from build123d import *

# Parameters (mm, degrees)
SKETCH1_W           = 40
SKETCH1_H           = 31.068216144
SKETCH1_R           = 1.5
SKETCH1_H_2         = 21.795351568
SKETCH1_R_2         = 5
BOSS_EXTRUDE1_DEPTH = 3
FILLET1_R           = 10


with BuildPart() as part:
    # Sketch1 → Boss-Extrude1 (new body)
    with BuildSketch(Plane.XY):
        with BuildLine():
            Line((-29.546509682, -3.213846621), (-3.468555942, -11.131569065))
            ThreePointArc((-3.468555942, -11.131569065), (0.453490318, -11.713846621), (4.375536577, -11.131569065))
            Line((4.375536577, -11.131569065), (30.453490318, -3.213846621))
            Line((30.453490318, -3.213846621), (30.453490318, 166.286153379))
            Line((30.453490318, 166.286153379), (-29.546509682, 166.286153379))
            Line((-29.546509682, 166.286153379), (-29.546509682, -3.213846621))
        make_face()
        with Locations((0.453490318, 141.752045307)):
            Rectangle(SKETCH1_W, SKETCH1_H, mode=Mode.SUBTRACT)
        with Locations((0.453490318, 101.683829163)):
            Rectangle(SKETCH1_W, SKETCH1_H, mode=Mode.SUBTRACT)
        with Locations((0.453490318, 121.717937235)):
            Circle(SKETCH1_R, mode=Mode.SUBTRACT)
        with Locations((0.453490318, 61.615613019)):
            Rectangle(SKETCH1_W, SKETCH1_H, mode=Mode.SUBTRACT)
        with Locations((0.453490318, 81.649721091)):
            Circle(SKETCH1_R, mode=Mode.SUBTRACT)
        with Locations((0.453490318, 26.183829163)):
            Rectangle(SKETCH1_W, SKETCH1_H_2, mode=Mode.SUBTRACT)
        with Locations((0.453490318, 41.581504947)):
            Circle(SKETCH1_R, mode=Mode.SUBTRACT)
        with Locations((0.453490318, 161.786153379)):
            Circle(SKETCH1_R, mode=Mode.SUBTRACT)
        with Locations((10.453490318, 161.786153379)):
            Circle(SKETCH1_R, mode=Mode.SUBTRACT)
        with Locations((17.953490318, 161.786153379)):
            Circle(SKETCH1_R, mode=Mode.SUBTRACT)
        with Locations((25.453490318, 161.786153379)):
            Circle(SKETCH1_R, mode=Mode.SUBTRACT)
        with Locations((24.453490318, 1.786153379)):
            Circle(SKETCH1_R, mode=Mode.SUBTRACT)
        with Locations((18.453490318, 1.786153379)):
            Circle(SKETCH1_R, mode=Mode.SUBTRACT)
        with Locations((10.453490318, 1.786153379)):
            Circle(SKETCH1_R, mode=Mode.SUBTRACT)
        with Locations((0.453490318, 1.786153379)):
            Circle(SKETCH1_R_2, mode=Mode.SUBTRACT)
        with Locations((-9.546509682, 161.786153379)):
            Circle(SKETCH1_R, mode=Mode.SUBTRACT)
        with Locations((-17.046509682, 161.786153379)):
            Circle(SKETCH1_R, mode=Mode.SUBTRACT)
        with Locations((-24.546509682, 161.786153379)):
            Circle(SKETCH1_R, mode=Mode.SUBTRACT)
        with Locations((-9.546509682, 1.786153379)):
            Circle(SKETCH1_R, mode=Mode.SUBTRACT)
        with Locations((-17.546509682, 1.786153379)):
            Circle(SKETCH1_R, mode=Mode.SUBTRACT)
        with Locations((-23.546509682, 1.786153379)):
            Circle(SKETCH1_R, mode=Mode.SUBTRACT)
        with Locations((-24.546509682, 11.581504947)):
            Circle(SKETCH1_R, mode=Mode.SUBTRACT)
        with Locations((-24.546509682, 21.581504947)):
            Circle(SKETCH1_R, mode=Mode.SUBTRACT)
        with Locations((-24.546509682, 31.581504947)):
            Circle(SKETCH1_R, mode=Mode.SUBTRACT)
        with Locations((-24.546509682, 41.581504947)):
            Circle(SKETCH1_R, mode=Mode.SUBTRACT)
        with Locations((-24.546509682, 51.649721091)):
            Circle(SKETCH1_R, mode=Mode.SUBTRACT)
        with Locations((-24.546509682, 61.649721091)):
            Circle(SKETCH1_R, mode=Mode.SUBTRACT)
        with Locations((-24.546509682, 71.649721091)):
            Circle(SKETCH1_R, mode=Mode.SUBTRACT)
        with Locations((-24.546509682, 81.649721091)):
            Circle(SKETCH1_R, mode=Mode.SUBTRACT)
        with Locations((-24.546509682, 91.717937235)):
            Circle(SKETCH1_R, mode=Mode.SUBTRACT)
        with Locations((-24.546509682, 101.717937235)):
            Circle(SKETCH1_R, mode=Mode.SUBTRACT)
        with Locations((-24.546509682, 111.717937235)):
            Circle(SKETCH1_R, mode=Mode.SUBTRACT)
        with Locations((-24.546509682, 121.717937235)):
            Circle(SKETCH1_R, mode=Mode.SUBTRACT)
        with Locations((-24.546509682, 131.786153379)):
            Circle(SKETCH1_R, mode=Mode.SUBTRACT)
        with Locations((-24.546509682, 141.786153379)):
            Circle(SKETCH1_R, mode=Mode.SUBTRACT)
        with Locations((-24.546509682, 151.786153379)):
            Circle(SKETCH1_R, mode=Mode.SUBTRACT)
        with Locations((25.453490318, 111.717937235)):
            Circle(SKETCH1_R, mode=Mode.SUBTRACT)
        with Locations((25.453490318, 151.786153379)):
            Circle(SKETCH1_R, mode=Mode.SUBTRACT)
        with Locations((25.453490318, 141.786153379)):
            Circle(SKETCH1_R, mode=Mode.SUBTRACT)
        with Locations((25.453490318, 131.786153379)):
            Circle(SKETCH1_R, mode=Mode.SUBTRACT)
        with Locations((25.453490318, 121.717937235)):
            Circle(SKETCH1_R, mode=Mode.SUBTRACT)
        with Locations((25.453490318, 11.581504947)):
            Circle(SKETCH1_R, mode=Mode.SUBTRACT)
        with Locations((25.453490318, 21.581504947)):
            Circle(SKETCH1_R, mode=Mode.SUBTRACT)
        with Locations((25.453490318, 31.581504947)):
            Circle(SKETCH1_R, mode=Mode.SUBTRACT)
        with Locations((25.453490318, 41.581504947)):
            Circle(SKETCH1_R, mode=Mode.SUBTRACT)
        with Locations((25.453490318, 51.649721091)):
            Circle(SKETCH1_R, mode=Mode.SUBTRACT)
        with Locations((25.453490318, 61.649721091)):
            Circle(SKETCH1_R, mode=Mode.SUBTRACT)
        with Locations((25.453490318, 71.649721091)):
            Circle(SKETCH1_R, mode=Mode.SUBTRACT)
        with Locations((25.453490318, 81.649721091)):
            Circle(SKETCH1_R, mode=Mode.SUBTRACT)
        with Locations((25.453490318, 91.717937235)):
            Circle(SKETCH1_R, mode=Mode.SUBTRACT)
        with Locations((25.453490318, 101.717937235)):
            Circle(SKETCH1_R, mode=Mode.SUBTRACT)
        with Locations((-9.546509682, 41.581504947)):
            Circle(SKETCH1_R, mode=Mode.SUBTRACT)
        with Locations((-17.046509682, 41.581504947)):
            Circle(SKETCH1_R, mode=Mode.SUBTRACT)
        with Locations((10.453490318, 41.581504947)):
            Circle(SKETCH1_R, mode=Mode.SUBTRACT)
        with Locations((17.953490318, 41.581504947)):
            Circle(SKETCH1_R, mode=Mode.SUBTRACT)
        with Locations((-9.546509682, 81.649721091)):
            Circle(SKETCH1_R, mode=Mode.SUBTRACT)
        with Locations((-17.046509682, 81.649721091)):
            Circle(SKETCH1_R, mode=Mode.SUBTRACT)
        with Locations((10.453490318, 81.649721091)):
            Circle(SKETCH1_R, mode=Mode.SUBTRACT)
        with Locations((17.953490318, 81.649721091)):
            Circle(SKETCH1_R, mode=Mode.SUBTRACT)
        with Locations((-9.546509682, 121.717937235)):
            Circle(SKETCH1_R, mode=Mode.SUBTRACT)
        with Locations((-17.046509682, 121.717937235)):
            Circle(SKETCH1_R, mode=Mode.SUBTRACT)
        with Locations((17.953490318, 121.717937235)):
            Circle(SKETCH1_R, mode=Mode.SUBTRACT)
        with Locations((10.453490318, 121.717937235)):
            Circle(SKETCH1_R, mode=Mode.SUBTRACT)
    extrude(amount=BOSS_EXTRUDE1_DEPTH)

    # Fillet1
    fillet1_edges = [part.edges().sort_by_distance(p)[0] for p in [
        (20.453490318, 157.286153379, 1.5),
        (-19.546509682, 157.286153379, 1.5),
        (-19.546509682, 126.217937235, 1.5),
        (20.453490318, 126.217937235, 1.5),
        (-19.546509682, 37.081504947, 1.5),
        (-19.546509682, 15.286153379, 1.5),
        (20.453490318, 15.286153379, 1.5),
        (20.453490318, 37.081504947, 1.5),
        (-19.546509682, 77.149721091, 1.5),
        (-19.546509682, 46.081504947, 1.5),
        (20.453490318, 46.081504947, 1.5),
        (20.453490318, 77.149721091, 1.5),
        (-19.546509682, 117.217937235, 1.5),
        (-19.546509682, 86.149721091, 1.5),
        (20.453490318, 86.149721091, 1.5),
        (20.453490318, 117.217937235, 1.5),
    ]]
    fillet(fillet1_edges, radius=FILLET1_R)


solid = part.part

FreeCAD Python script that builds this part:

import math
import FreeCAD as App
import Part
import Sketcher

V = App.Vector
Q = App.Units.Quantity


def edges_at(feature, points):
    """Names of the edges that pass closest to the given points."""
    edges = feature.Shape.Edges
    near = lambda p: min(range(len(edges)), key=lambda i: edges[i].distToShape(Part.Vertex(*p))[0])
    return sorted({f"Edge{near(p) + 1}" for p in points})

doc = App.newDocument("Part")
body = doc.addObject("PartDesign::Body", "Body")

sketch1 = body.newObject("Sketcher::SketchObject", "Sketch")
sketch1.AttachmentSupport = (doc.getObject("XY_Plane"), [""])
sketch1.MapMode = "FlatFace"
sketch1.addGeometry(Part.LineSegment(V(-29.5, -3.2, 0), V(-3.5, -11.1, 0)), False)
sketch1.addGeometry(Part.ArcOfCircle(Part.Circle(V(0.5, 1.8, 0), V(0, 0, 1), 13.5), math.radians(-107), math.radians(-73)), False)
sketch1.addGeometry(Part.LineSegment(V(4.4, -11.1, 0), V(30.5, -3.2, 0)), False)
sketch1.addGeometry(Part.LineSegment(V(30.5, -3.2, 0), V(30.5, 166.3, 0)), False)
sketch1.addGeometry(Part.LineSegment(V(30.5, 166.3, 0), V(-29.5, 166.3, 0)), False)
sketch1.addGeometry(Part.LineSegment(V(-29.5, 166.3, 0), V(-29.5, -3.2, 0)), False)
sketch1.addGeometry(Part.Circle(V(-23.5, 1.8, 0), V(0, 0, 1), 1.5), False)
sketch1.addGeometry(Part.Circle(V(-24.5, 11.6, 0), V(0, 0, 1), 1.5), False)
sketch1.addGeometry(Part.Circle(V(-17.5, 1.8, 0), V(0, 0, 1), 1.5), False)
sketch1.addGeometry(Part.Circle(V(-24.5, 21.6, 0), V(0, 0, 1), 1.5), False)
sketch1.addGeometry(Part.Circle(V(-24.5, 31.6, 0), V(0, 0, 1), 1.5), False)
sketch1.addGeometry(Part.Circle(V(-9.5, 1.8, 0), V(0, 0, 1), 1.5), False)
sketch1.addGeometry(Part.Circle(V(-24.5, 41.6, 0), V(0, 0, 1), 1.5), False)
sketch1.addGeometry(Part.Circle(V(-24.5, 51.6, 0), V(0, 0, 1), 1.5), False)
sketch1.addGeometry(Part.Circle(V(-17, 41.6, 0), V(0, 0, 1), 1.5), False)
sketch1.addGeometry(Part.Circle(V(-24.5, 61.6, 0), V(0, 0, 1), 1.5), False)
sketch1.addGeometry(Part.Circle(V(-24.5, 71.6, 0), V(0, 0, 1), 1.5), False)
sketch1.addGeometry(Part.Circle(V(-9.5, 41.6, 0), V(0, 0, 1), 1.5), False)
sketch1.addGeometry(Part.Circle(V(0.5, 1.8, 0), V(0, 0, 1), 5), False)
sketch1.addGeometry(Part.Circle(V(10.5, 1.8, 0), V(0, 0, 1), 1.5), False)
sketch1.addGeometry(Part.LineSegment(V(20.5, 15.3, 0), V(-19.5, 15.3, 0)), False)
sketch1.addGeometry(Part.LineSegment(V(-19.5, 15.3, 0), V(-19.5, 37.1, 0)), False)
sketch1.addGeometry(Part.LineSegment(V(-19.5, 37.1, 0), V(20.5, 37.1, 0)), False)
sketch1.addGeometry(Part.LineSegment(V(20.5, 37.1, 0), V(20.5, 15.3, 0)), False)
sketch1.addGeometry(Part.Circle(V(18.5, 1.8, 0), V(0, 0, 1), 1.5), False)
sketch1.addGeometry(Part.Circle(V(24.5, 1.8, 0), V(0, 0, 1), 1.5), False)
sketch1.addGeometry(Part.Circle(V(25.5, 11.6, 0), V(0, 0, 1), 1.5), False)
sketch1.addGeometry(Part.Circle(V(25.5, 21.6, 0), V(0, 0, 1), 1.5), False)
sketch1.addGeometry(Part.Circle(V(25.5, 31.6, 0), V(0, 0, 1), 1.5), False)
sketch1.addGeometry(Part.Circle(V(0.5, 41.6, 0), V(0, 0, 1), 1.5), False)
sketch1.addGeometry(Part.Circle(V(10.5, 41.6, 0), V(0, 0, 1), 1.5), False)
sketch1.addGeometry(Part.LineSegment(V(20.5, 46.1, 0), V(-19.5, 46.1, 0)), False)
sketch1.addGeometry(Part.LineSegment(V(-19.5, 46.1, 0), V(-19.5, 77.1, 0)), False)
sketch1.addGeometry(Part.LineSegment(V(-19.5, 77.1, 0), V(20.5, 77.1, 0)), False)
sketch1.addGeometry(Part.LineSegment(V(20.5, 77.1, 0), V(20.5, 46.1, 0)), False)
sketch1.addGeometry(Part.Circle(V(18, 41.6, 0), V(0, 0, 1), 1.5), False)
sketch1.addGeometry(Part.Circle(V(25.5, 41.6, 0), V(0, 0, 1), 1.5), False)
sketch1.addGeometry(Part.Circle(V(25.5, 51.6, 0), V(0, 0, 1), 1.5), False)
sketch1.addGeometry(Part.Circle(V(25.5, 61.6, 0), V(0, 0, 1), 1.5), False)
sketch1.addGeometry(Part.Circle(V(25.5, 71.6, 0), V(0, 0, 1), 1.5), False)
sketch1.addGeometry(Part.Circle(V(-24.5, 81.6, 0), V(0, 0, 1), 1.5), False)
sketch1.addGeometry(Part.Circle(V(-24.5, 91.7, 0), V(0, 0, 1), 1.5), False)
sketch1.addGeometry(Part.Circle(V(-17, 81.6, 0), V(0, 0, 1), 1.5), False)
sketch1.addGeometry(Part.Circle(V(-24.5, 101.7, 0), V(0, 0, 1), 1.5), False)
sketch1.addGeometry(Part.Circle(V(-24.5, 111.7, 0), V(0, 0, 1), 1.5), False)
sketch1.addGeometry(Part.Circle(V(-9.5, 81.6, 0), V(0, 0, 1), 1.5), False)
sketch1.addGeometry(Part.Circle(V(-24.5, 121.7, 0), V(0, 0, 1), 1.5), False)
sketch1.addGeometry(Part.Circle(V(-24.5, 131.8, 0), V(0, 0, 1), 1.5), False)
sketch1.addGeometry(Part.Circle(V(-24.5, 141.8, 0), V(0, 0, 1), 1.5), False)
sketch1.addGeometry(Part.Circle(V(-17, 121.7, 0), V(0, 0, 1), 1.5), False)
sketch1.addGeometry(Part.Circle(V(-24.5, 151.8, 0), V(0, 0, 1), 1.5), False)
sketch1.addGeometry(Part.Circle(V(-24.5, 161.8, 0), V(0, 0, 1), 1.5), False)
sketch1.addGeometry(Part.Circle(V(-17, 161.8, 0), V(0, 0, 1), 1.5), False)
sketch1.addGeometry(Part.Circle(V(-9.5, 121.7, 0), V(0, 0, 1), 1.5), False)
sketch1.addGeometry(Part.Circle(V(-9.5, 161.8, 0), V(0, 0, 1), 1.5), False)
sketch1.addGeometry(Part.Circle(V(0.5, 81.6, 0), V(0, 0, 1), 1.5), False)
sketch1.addGeometry(Part.Circle(V(10.5, 81.6, 0), V(0, 0, 1), 1.5), False)
sketch1.addGeometry(Part.LineSegment(V(20.5, 86.1, 0), V(-19.5, 86.1, 0)), False)
sketch1.addGeometry(Part.LineSegment(V(-19.5, 86.1, 0), V(-19.5, 117.2, 0)), False)
sketch1.addGeometry(Part.LineSegment(V(-19.5, 117.2, 0), V(20.5, 117.2, 0)), False)
sketch1.addGeometry(Part.LineSegment(V(20.5, 117.2, 0), V(20.5, 86.1, 0)), False)
sketch1.addGeometry(Part.Circle(V(18, 81.6, 0), V(0, 0, 1), 1.5), False)
sketch1.addGeometry(Part.Circle(V(25.5, 81.6, 0), V(0, 0, 1), 1.5), False)
sketch1.addGeometry(Part.Circle(V(25.5, 91.7, 0), V(0, 0, 1), 1.5), False)
sketch1.addGeometry(Part.Circle(V(25.5, 101.7, 0), V(0, 0, 1), 1.5), False)
sketch1.addGeometry(Part.Circle(V(25.5, 111.7, 0), V(0, 0, 1), 1.5), False)
sketch1.addGeometry(Part.Circle(V(0.5, 121.7, 0), V(0, 0, 1), 1.5), False)
sketch1.addGeometry(Part.LineSegment(V(20.5, 126.2, 0), V(-19.5, 126.2, 0)), False)
sketch1.addGeometry(Part.LineSegment(V(-19.5, 126.2, 0), V(-19.5, 157.3, 0)), False)
sketch1.addGeometry(Part.LineSegment(V(-19.5, 157.3, 0), V(20.5, 157.3, 0)), False)
sketch1.addGeometry(Part.LineSegment(V(20.5, 157.3, 0), V(20.5, 126.2, 0)), False)
sketch1.addGeometry(Part.Circle(V(10.5, 121.7, 0), V(0, 0, 1), 1.5), False)
sketch1.addGeometry(Part.Circle(V(0.5, 161.8, 0), V(0, 0, 1), 1.5), False)
sketch1.addGeometry(Part.Circle(V(10.5, 161.8, 0), V(0, 0, 1), 1.5), False)
sketch1.addGeometry(Part.Circle(V(18, 121.7, 0), V(0, 0, 1), 1.5), False)
sketch1.addGeometry(Part.Circle(V(25.5, 121.7, 0), V(0, 0, 1), 1.5), False)
sketch1.addGeometry(Part.Circle(V(25.5, 131.8, 0), V(0, 0, 1), 1.5), False)
sketch1.addGeometry(Part.Circle(V(25.5, 141.8, 0), V(0, 0, 1), 1.5), False)
sketch1.addGeometry(Part.Circle(V(18, 161.8, 0), V(0, 0, 1), 1.5), False)
sketch1.addGeometry(Part.Circle(V(25.5, 151.8, 0), V(0, 0, 1), 1.5), False)
sketch1.addGeometry(Part.Circle(V(25.5, 161.8, 0), V(0, 0, 1), 1.5), False)
sketch1.addConstraint(Sketcher.Constraint("Tangent", 0, 2, 1, 1))
sketch1.addConstraint(Sketcher.Constraint("Tangent", 1, 2, 2, 1))
sketch1.addConstraint(Sketcher.Constraint("Coincident", 2, 2, 3, 1))
sketch1.addConstraint(Sketcher.Constraint("Coincident", 3, 2, 4, 1))
sketch1.addConstraint(Sketcher.Constraint("Coincident", 4, 2, 5, 1))
sketch1.addConstraint(Sketcher.Constraint("Coincident", 5, 2, 0, 1))
sketch1.addConstraint(Sketcher.Constraint("Coincident", 20, 2, 21, 1))
sketch1.addConstraint(Sketcher.Constraint("Coincident", 21, 2, 22, 1))
sketch1.addConstraint(Sketcher.Constraint("Coincident", 22, 2, 23, 1))
sketch1.addConstraint(Sketcher.Constraint("Coincident", 23, 2, 20, 1))
sketch1.addConstraint(Sketcher.Constraint("Coincident", 31, 2, 32, 1))
sketch1.addConstraint(Sketcher.Constraint("Coincident", 32, 2, 33, 1))
sketch1.addConstraint(Sketcher.Constraint("Coincident", 33, 2, 34, 1))
sketch1.addConstraint(Sketcher.Constraint("Coincident", 34, 2, 31, 1))
sketch1.addConstraint(Sketcher.Constraint("Coincident", 57, 2, 58, 1))
sketch1.addConstraint(Sketcher.Constraint("Coincident", 58, 2, 59, 1))
sketch1.addConstraint(Sketcher.Constraint("Coincident", 59, 2, 60, 1))
sketch1.addConstraint(Sketcher.Constraint("Coincident", 60, 2, 57, 1))
sketch1.addConstraint(Sketcher.Constraint("Coincident", 67, 2, 68, 1))
sketch1.addConstraint(Sketcher.Constraint("Coincident", 68, 2, 69, 1))
sketch1.addConstraint(Sketcher.Constraint("Coincident", 69, 2, 70, 1))
sketch1.addConstraint(Sketcher.Constraint("Coincident", 70, 2, 67, 1))
sketch1.addConstraint(Sketcher.Constraint("Vertical", 3))
sketch1.addConstraint(Sketcher.Constraint("Horizontal", 4))
sketch1.addConstraint(Sketcher.Constraint("Vertical", 5))
sketch1.addConstraint(Sketcher.Constraint("Horizontal", 20))
sketch1.addConstraint(Sketcher.Constraint("Vertical", 21))
sketch1.addConstraint(Sketcher.Constraint("Horizontal", 22))
sketch1.addConstraint(Sketcher.Constraint("Vertical", 23))
sketch1.addConstraint(Sketcher.Constraint("Horizontal", 31))
sketch1.addConstraint(Sketcher.Constraint("Vertical", 32))
sketch1.addConstraint(Sketcher.Constraint("Horizontal", 33))
sketch1.addConstraint(Sketcher.Constraint("Vertical", 34))
sketch1.addConstraint(Sketcher.Constraint("Horizontal", 57))
sketch1.addConstraint(Sketcher.Constraint("Vertical", 58))
sketch1.addConstraint(Sketcher.Constraint("Horizontal", 59))
sketch1.addConstraint(Sketcher.Constraint("Vertical", 60))
sketch1.addConstraint(Sketcher.Constraint("Horizontal", 67))
sketch1.addConstraint(Sketcher.Constraint("Vertical", 68))
sketch1.addConstraint(Sketcher.Constraint("Horizontal", 69))
sketch1.addConstraint(Sketcher.Constraint("Vertical", 70))
sketch1.addConstraint(Sketcher.Constraint("Coincident", 18, 3, 1, 3))
sketch1.addConstraint(Sketcher.Constraint("Equal", 6, 7))
sketch1.addConstraint(Sketcher.Constraint("Equal", 7, 8))
sketch1.addConstraint(Sketcher.Constraint("Equal", 8, 9))
sketch1.addConstraint(Sketcher.Constraint("Equal", 9, 10))
sketch1.addConstraint(Sketcher.Constraint("Equal", 10, 11))
sketch1.addConstraint(Sketcher.Constraint("Equal", 11, 12))
sketch1.addConstraint(Sketcher.Constraint("Equal", 12, 13))
sketch1.addConstraint(Sketcher.Constraint("Equal", 13, 14))
sketch1.addConstraint(Sketcher.Constraint("Equal", 14, 15))
sketch1.addConstraint(Sketcher.Constraint("Equal", 15, 16))
sketch1.addConstraint(Sketcher.Constraint("Equal", 16, 17))
sketch1.addConstraint(Sketcher.Constraint("Equal", 17, 19))
sketch1.addConstraint(Sketcher.Constraint("Equal", 19, 24))
sketch1.addConstraint(Sketcher.Constraint("Equal", 24, 25))
sketch1.addConstraint(Sketcher.Constraint("Equal", 25, 26))
sketch1.addConstraint(Sketcher.Constraint("Equal", 26, 27))
sketch1.addConstraint(Sketcher.Constraint("Equal", 27, 28))
sketch1.addConstraint(Sketcher.Constraint("Equal", 28, 29))
sketch1.addConstraint(Sketcher.Constraint("Equal", 29, 30))
sketch1.addConstraint(Sketcher.Constraint("Equal", 30, 35))
sketch1.addConstraint(Sketcher.Constraint("Equal", 35, 36))
sketch1.addConstraint(Sketcher.Constraint("Equal", 36, 37))
sketch1.addConstraint(Sketcher.Constraint("Equal", 37, 38))
sketch1.addConstraint(Sketcher.Constraint("Equal", 38, 39))
sketch1.addConstraint(Sketcher.Constraint("Equal", 39, 40))
sketch1.addConstraint(Sketcher.Constraint("Equal", 40, 41))
sketch1.addConstraint(Sketcher.Constraint("Equal", 41, 42))
sketch1.addConstraint(Sketcher.Constraint("Equal", 42, 43))
sketch1.addConstraint(Sketcher.Constraint("Equal", 43, 44))
sketch1.addConstraint(Sketcher.Constraint("Equal", 44, 45))
sketch1.addConstraint(Sketcher.Constraint("Equal", 45, 46))
sketch1.addConstraint(Sketcher.Constraint("Equal", 46, 47))
sketch1.addConstraint(Sketcher.Constraint("Equal", 47, 48))
sketch1.addConstraint(Sketcher.Constraint("Equal", 48, 49))
sketch1.addConstraint(Sketcher.Constraint("Equal", 49, 50))
sketch1.addConstraint(Sketcher.Constraint("Equal", 50, 51))
sketch1.addConstraint(Sketcher.Constraint("Equal", 51, 52))
sketch1.addConstraint(Sketcher.Constraint("Equal", 52, 53))
sketch1.addConstraint(Sketcher.Constraint("Equal", 53, 54))
sketch1.addConstraint(Sketcher.Constraint("Equal", 54, 55))
sketch1.addConstraint(Sketcher.Constraint("Equal", 55, 56))
sketch1.addConstraint(Sketcher.Constraint("Equal", 56, 61))
sketch1.addConstraint(Sketcher.Constraint("Equal", 61, 62))
sketch1.addConstraint(Sketcher.Constraint("Equal", 62, 63))
sketch1.addConstraint(Sketcher.Constraint("Equal", 63, 64))
sketch1.addConstraint(Sketcher.Constraint("Equal", 64, 65))
sketch1.addConstraint(Sketcher.Constraint("Equal", 65, 66))
sketch1.addConstraint(Sketcher.Constraint("Equal", 66, 71))
sketch1.addConstraint(Sketcher.Constraint("Equal", 71, 72))
sketch1.addConstraint(Sketcher.Constraint("Equal", 72, 73))
sketch1.addConstraint(Sketcher.Constraint("Equal", 73, 74))
sketch1.addConstraint(Sketcher.Constraint("Equal", 74, 75))
sketch1.addConstraint(Sketcher.Constraint("Equal", 75, 76))
sketch1.addConstraint(Sketcher.Constraint("Equal", 76, 77))
sketch1.addConstraint(Sketcher.Constraint("Equal", 77, 78))
sketch1.addConstraint(Sketcher.Constraint("Equal", 78, 79))
sketch1.addConstraint(Sketcher.Constraint("Equal", 79, 80))
sketch1.addConstraint(Sketcher.Constraint("Horizontal", 1, 3, 6, 3))
sketch1.addConstraint(Sketcher.Constraint("Horizontal", 6, 3, 8, 3))
sketch1.addConstraint(Sketcher.Constraint("Horizontal", 8, 3, 11, 3))
sketch1.addConstraint(Sketcher.Constraint("Horizontal", 12, 3, 14, 3))
sketch1.addConstraint(Sketcher.Constraint("Horizontal", 14, 3, 17, 3))
sketch1.addConstraint(Sketcher.Constraint("Horizontal", 18, 3, 19, 3))
sketch1.addConstraint(Sketcher.Constraint("Horizontal", 19, 3, 24, 3))
sketch1.addConstraint(Sketcher.Constraint("Horizontal", 24, 3, 25, 3))
sketch1.addConstraint(Sketcher.Constraint("Horizontal", 7, 3, 26, 3))
sketch1.addConstraint(Sketcher.Constraint("Horizontal", 9, 3, 27, 3))
sketch1.addConstraint(Sketcher.Constraint("Horizontal", 10, 3, 28, 3))
sketch1.addConstraint(Sketcher.Constraint("Horizontal", 17, 3, 29, 3))
sketch1.addConstraint(Sketcher.Constraint("Horizontal", 29, 3, 30, 3))
sketch1.addConstraint(Sketcher.Constraint("Horizontal", 30, 3, 35, 3))
sketch1.addConstraint(Sketcher.Constraint("Horizontal", 35, 3, 36, 3))
sketch1.addConstraint(Sketcher.Constraint("Horizontal", 13, 3, 37, 3))
sketch1.addConstraint(Sketcher.Constraint("Horizontal", 15, 3, 38, 3))
sketch1.addConstraint(Sketcher.Constraint("Horizontal", 16, 3, 39, 3))
sketch1.addConstraint(Sketcher.Constraint("Horizontal", 40, 3, 42, 3))
sketch1.addConstraint(Sketcher.Constraint("Horizontal", 42, 3, 45, 3))
sketch1.addConstraint(Sketcher.Constraint("Horizontal", 46, 3, 49, 3))
sketch1.addConstraint(Sketcher.Constraint("Horizontal", 51, 3, 52, 3))
sketch1.addConstraint(Sketcher.Constraint("Horizontal", 49, 3, 53, 3))
sketch1.addConstraint(Sketcher.Constraint("Horizontal", 52, 3, 54, 3))
sketch1.addConstraint(Sketcher.Constraint("Horizontal", 45, 3, 55, 3))
sketch1.addConstraint(Sketcher.Constraint("Horizontal", 55, 3, 56, 3))
sketch1.addConstraint(Sketcher.Constraint("Horizontal", 56, 3, 61, 3))
sketch1.addConstraint(Sketcher.Constraint("Horizontal", 61, 3, 62, 3))
sketch1.addConstraint(Sketcher.Constraint("Horizontal", 41, 3, 63, 3))
sketch1.addConstraint(Sketcher.Constraint("Horizontal", 43, 3, 64, 3))
sketch1.addConstraint(Sketcher.Constraint("Horizontal", 44, 3, 65, 3))
sketch1.addConstraint(Sketcher.Constraint("Horizontal", 53, 3, 66, 3))
sketch1.addConstraint(Sketcher.Constraint("Horizontal", 66, 3, 71, 3))
sketch1.addConstraint(Sketcher.Constraint("Horizontal", 54, 3, 72, 3))
sketch1.addConstraint(Sketcher.Constraint("Horizontal", 72, 3, 73, 3))
sketch1.addConstraint(Sketcher.Constraint("Horizontal", 71, 3, 74, 3))
sketch1.addConstraint(Sketcher.Constraint("Horizontal", 74, 3, 75, 3))
sketch1.addConstraint(Sketcher.Constraint("Horizontal", 47, 3, 76, 3))
sketch1.addConstraint(Sketcher.Constraint("Horizontal", 48, 3, 77, 3))
sketch1.addConstraint(Sketcher.Constraint("Horizontal", 73, 3, 78, 3))
sketch1.addConstraint(Sketcher.Constraint("Horizontal", 50, 3, 79, 3))
sketch1.addConstraint(Sketcher.Constraint("Horizontal", 78, 3, 80, 3))
sketch1.addConstraint(Sketcher.Constraint("Horizontal", 0, 2, 1, 2))
sketch1.addConstraint(Sketcher.Constraint("Horizontal", 2, 2, 5, 2))
sketch1.addConstraint(Sketcher.Constraint("Vertical", 7, 3, 9, 3))
sketch1.addConstraint(Sketcher.Constraint("Vertical", 9, 3, 10, 3))
sketch1.addConstraint(Sketcher.Constraint("Vertical", 10, 3, 12, 3))
sketch1.addConstraint(Sketcher.Constraint("Vertical", 12, 3, 13, 3))
sketch1.addConstraint(Sketcher.Constraint("Vertical", 13, 3, 15, 3))
sketch1.addConstraint(Sketcher.Constraint("Vertical", 15, 3, 16, 3))
sketch1.addConstraint(Sketcher.Constraint("Vertical", 11, 3, 17, 3))
sketch1.addConstraint(Sketcher.Constraint("Vertical", 26, 3, 27, 3))
sketch1.addConstraint(Sketcher.Constraint("Vertical", 27, 3, 28, 3))
sketch1.addConstraint(Sketcher.Constraint("Vertical", 18, 3, 29, 3))
sketch1.addConstraint(Sketcher.Constraint("Vertical", 19, 3, 30, 3))
sketch1.addConstraint(Sketcher.Constraint("Vertical", 28, 3, 36, 3))
sketch1.addConstraint(Sketcher.Constraint("Vertical", 36, 3, 37, 3))
sketch1.addConstraint(Sketcher.Constraint("Vertical", 37, 3, 38, 3))
sketch1.addConstraint(Sketcher.Constraint("Vertical", 38, 3, 39, 3))
sketch1.addConstraint(Sketcher.Constraint("Vertical", 16, 3, 40, 3))
sketch1.addConstraint(Sketcher.Constraint("Vertical", 40, 3, 41, 3))
sketch1.addConstraint(Sketcher.Constraint("Vertical", 14, 3, 42, 3))
sketch1.addConstraint(Sketcher.Constraint("Vertical", 41, 3, 43, 3))
sketch1.addConstraint(Sketcher.Constraint("Vertical", 43, 3, 44, 3))
sketch1.addConstraint(Sketcher.Constraint("Vertical", 17, 3, 45, 3))
sketch1.addConstraint(Sketcher.Constraint("Vertical", 44, 3, 46, 3))
sketch1.addConstraint(Sketcher.Constraint("Vertical", 46, 3, 47, 3))
sketch1.addConstraint(Sketcher.Constraint("Vertical", 47, 3, 48, 3))
sketch1.addConstraint(Sketcher.Constraint("Vertical", 42, 3, 49, 3))
sketch1.addConstraint(Sketcher.Constraint("Vertical", 48, 3, 50, 3))
sketch1.addConstraint(Sketcher.Constraint("Vertical", 50, 3, 51, 3))
sketch1.addConstraint(Sketcher.Constraint("Vertical", 49, 3, 52, 3))
sketch1.addConstraint(Sketcher.Constraint("Vertical", 45, 3, 53, 3))
sketch1.addConstraint(Sketcher.Constraint("Vertical", 53, 3, 54, 3))
sketch1.addConstraint(Sketcher.Constraint("Vertical", 29, 3, 55, 3))
sketch1.addConstraint(Sketcher.Constraint("Vertical", 30, 3, 56, 3))
sketch1.addConstraint(Sketcher.Constraint("Vertical", 35, 3, 61, 3))
sketch1.addConstraint(Sketcher.Constraint("Vertical", 39, 3, 62, 3))
sketch1.addConstraint(Sketcher.Constraint("Vertical", 62, 3, 63, 3))
sketch1.addConstraint(Sketcher.Constraint("Vertical", 63, 3, 64, 3))
sketch1.addConstraint(Sketcher.Constraint("Vertical", 64, 3, 65, 3))
sketch1.addConstraint(Sketcher.Constraint("Vertical", 55, 3, 66, 3))
sketch1.addConstraint(Sketcher.Constraint("Vertical", 56, 3, 71, 3))
sketch1.addConstraint(Sketcher.Constraint("Vertical", 66, 3, 72, 3))
sketch1.addConstraint(Sketcher.Constraint("Vertical", 71, 3, 73, 3))
sketch1.addConstraint(Sketcher.Constraint("Vertical", 61, 3, 74, 3))
sketch1.addConstraint(Sketcher.Constraint("Vertical", 65, 3, 75, 3))
sketch1.addConstraint(Sketcher.Constraint("Vertical", 75, 3, 76, 3))
sketch1.addConstraint(Sketcher.Constraint("Vertical", 76, 3, 77, 3))
sketch1.addConstraint(Sketcher.Constraint("Vertical", 74, 3, 78, 3))
sketch1.addConstraint(Sketcher.Constraint("Vertical", 77, 3, 79, 3))
sketch1.addConstraint(Sketcher.Constraint("Vertical", 79, 3, 80, 3))
sketch1.addConstraint(Sketcher.Constraint("Vertical", 21, 2, 31, 2))
sketch1.addConstraint(Sketcher.Constraint("Vertical", 23, 2, 33, 2))
sketch1.addConstraint(Sketcher.Constraint("Vertical", 32, 2, 57, 2))
sketch1.addConstraint(Sketcher.Constraint("Vertical", 34, 2, 59, 2))
sketch1.addConstraint(Sketcher.Constraint("Vertical", 58, 2, 67, 2))
sketch1.addConstraint(Sketcher.Constraint("Vertical", 60, 2, 69, 2))
sketch1.addConstraint(Sketcher.Constraint("Equal", 34, 58))
sketch1.addConstraint(Sketcher.Constraint("Equal", 60, 68))
sketch1.addConstraint(Sketcher.Constraint("Diameter", 6, Q("3 mm")))
sketch1.addConstraint(Sketcher.Constraint("Diameter", 18, Q("10 mm")))
sketch1.addConstraint(Sketcher.Constraint("Radius", 1, Q("13.5 mm")))
sketch1.addConstraint(Sketcher.Constraint("DistanceX", 4, 2, 4, 1, Q("60 mm")))
sketch1.addConstraint(Sketcher.Constraint("DistanceX", 20, 2, 20, 1, Q("40 mm")))
sketch1.addConstraint(Sketcher.Constraint("DistanceY", 3, 1, 3, 2, Q("169.5 mm")))
sketch1.addConstraint(Sketcher.Constraint("DistanceY", 21, 1, 21, 2, Q("21.795352 mm")))
sketch1.addConstraint(Sketcher.Constraint("Distance", 0, Q("27.25344 mm")))
sketch1.addConstraint(Sketcher.Constraint("DistanceY", 32, 1, 32, 2, Q("31.068216 mm")))
sketch1.addConstraint(Sketcher.Constraint("DistanceX", -1, 1, 1, 3, Q("0.45349 mm")))
sketch1.addConstraint(Sketcher.Constraint("DistanceX", 6, 3, -1, 1, Q("23.54651 mm")))
sketch1.addConstraint(Sketcher.Constraint("DistanceX", 7, 3, -1, 1, Q("24.54651 mm")))
sketch1.addConstraint(Sketcher.Constraint("DistanceX", 8, 3, -1, 1, Q("17.54651 mm")))
sketch1.addConstraint(Sketcher.Constraint("DistanceX", 11, 3, -1, 1, Q("9.54651 mm")))
sketch1.addConstraint(Sketcher.Constraint("DistanceY", -1, 1, 13, 3, Q("51.649721 mm")))
sketch1.addConstraint(Sketcher.Constraint("DistanceX", 14, 3, -1, 1, Q("17.04651 mm")))
sketch1.addConstraint(Sketcher.Constraint("DistanceY", -1, 1, 15, 3, Q("61.649721 mm")))
sketch1.addConstraint(Sketcher.Constraint("DistanceY", -1, 1, 16, 3, Q("71.649721 mm")))
sketch1.addConstraint(Sketcher.Constraint("DistanceX", -1, 1, 19, 3, Q("10.45349 mm")))
sketch1.addConstraint(Sketcher.Constraint("DistanceX", -1, 1, 24, 3, Q("18.45349 mm")))
sketch1.addConstraint(Sketcher.Constraint("DistanceX", -1, 1, 25, 3, Q("24.45349 mm")))
sketch1.addConstraint(Sketcher.Constraint("DistanceX", -1, 1, 26, 3, Q("25.45349 mm")))
sketch1.addConstraint(Sketcher.Constraint("DistanceX", -1, 1, 35, 3, Q("17.95349 mm")))
sketch1.addConstraint(Sketcher.Constraint("DistanceY", -1, 1, 40, 3, Q("81.649721 mm")))
sketch1.addConstraint(Sketcher.Constraint("DistanceY", 0, 2, -1, 1, Q("11.131569 mm")))
sketch1.addConstraint(Sketcher.Constraint("DistanceX", 20, 2, -1, 1, Q("19.54651 mm")))
sketch1.addConstraint(Sketcher.Constraint("DistanceY", -1, 1, 32, 2, Q("77.149721 mm")))
sketch1.addConstraint(Sketcher.Constraint("DistanceY", -1, 1, 57, 2, Q("86.149721 mm")))
sketch1.addConstraint(Sketcher.Constraint("DistanceY", -1, 1, 7, 3, Q("11.581505 mm")))
sketch1.addConstraint(Sketcher.Constraint("DistanceY", -1, 1, 9, 3, Q("21.581505 mm")))
sketch1.addConstraint(Sketcher.Constraint("DistanceY", -1, 1, 10, 3, Q("31.581505 mm")))
sketch1.addConstraint(Sketcher.Constraint("DistanceY", -1, 1, 12, 3, Q("41.581505 mm")))
sketch1.addConstraint(Sketcher.Constraint("DistanceY", -1, 1, 41, 3, Q("91.717937 mm")))
sketch1.addConstraint(Sketcher.Constraint("DistanceY", -1, 1, 43, 3, Q("101.717937 mm")))
sketch1.addConstraint(Sketcher.Constraint("DistanceY", -1, 1, 44, 3, Q("111.717937 mm")))
sketch1.addConstraint(Sketcher.Constraint("DistanceY", -1, 1, 46, 3, Q("121.717937 mm")))
sketch1.addConstraint(Sketcher.Constraint("DistanceY", -1, 1, 47, 3, Q("131.786153 mm")))
sketch1.addConstraint(Sketcher.Constraint("DistanceY", -1, 1, 48, 3, Q("141.786153 mm")))
sketch1.addConstraint(Sketcher.Constraint("DistanceY", -1, 1, 50, 3, Q("151.786153 mm")))
sketch1.addConstraint(Sketcher.Constraint("DistanceY", -1, 1, 51, 3, Q("161.786153 mm")))
sketch1.addConstraint(Sketcher.Constraint("DistanceY", -1, 1, 20, 2, Q("15.286153 mm")))
sketch1.addConstraint(Sketcher.Constraint("DistanceY", -1, 1, 67, 2, Q("126.217937 mm")))
pad1 = body.newObject("PartDesign::Pad", "Pad")
pad1.Profile = sketch1
pad1.Length = 3
doc.recompute()

fillet = body.newObject("PartDesign::Fillet", "Fillet")
fillet.Base = (pad1, edges_at(pad1, [
    (20.453, 157.286, 1.5),
    (-19.547, 157.286, 1.5),
    (-19.547, 126.218, 1.5),
    (20.453, 126.218, 1.5),
    (-19.547, 37.082, 1.5),
    (-19.547, 15.286, 1.5),
    (20.453, 15.286, 1.5),
    (20.453, 37.082, 1.5),
    (-19.547, 77.15, 1.5),
    (-19.547, 46.082, 1.5),
    (20.453, 46.082, 1.5),
    (20.453, 77.15, 1.5),
    (-19.547, 117.218, 1.5),
    (-19.547, 86.15, 1.5),
    (20.453, 86.15, 1.5),
    (20.453, 117.218, 1.5),
]))
fillet.Radius = 10

doc.recompute()
